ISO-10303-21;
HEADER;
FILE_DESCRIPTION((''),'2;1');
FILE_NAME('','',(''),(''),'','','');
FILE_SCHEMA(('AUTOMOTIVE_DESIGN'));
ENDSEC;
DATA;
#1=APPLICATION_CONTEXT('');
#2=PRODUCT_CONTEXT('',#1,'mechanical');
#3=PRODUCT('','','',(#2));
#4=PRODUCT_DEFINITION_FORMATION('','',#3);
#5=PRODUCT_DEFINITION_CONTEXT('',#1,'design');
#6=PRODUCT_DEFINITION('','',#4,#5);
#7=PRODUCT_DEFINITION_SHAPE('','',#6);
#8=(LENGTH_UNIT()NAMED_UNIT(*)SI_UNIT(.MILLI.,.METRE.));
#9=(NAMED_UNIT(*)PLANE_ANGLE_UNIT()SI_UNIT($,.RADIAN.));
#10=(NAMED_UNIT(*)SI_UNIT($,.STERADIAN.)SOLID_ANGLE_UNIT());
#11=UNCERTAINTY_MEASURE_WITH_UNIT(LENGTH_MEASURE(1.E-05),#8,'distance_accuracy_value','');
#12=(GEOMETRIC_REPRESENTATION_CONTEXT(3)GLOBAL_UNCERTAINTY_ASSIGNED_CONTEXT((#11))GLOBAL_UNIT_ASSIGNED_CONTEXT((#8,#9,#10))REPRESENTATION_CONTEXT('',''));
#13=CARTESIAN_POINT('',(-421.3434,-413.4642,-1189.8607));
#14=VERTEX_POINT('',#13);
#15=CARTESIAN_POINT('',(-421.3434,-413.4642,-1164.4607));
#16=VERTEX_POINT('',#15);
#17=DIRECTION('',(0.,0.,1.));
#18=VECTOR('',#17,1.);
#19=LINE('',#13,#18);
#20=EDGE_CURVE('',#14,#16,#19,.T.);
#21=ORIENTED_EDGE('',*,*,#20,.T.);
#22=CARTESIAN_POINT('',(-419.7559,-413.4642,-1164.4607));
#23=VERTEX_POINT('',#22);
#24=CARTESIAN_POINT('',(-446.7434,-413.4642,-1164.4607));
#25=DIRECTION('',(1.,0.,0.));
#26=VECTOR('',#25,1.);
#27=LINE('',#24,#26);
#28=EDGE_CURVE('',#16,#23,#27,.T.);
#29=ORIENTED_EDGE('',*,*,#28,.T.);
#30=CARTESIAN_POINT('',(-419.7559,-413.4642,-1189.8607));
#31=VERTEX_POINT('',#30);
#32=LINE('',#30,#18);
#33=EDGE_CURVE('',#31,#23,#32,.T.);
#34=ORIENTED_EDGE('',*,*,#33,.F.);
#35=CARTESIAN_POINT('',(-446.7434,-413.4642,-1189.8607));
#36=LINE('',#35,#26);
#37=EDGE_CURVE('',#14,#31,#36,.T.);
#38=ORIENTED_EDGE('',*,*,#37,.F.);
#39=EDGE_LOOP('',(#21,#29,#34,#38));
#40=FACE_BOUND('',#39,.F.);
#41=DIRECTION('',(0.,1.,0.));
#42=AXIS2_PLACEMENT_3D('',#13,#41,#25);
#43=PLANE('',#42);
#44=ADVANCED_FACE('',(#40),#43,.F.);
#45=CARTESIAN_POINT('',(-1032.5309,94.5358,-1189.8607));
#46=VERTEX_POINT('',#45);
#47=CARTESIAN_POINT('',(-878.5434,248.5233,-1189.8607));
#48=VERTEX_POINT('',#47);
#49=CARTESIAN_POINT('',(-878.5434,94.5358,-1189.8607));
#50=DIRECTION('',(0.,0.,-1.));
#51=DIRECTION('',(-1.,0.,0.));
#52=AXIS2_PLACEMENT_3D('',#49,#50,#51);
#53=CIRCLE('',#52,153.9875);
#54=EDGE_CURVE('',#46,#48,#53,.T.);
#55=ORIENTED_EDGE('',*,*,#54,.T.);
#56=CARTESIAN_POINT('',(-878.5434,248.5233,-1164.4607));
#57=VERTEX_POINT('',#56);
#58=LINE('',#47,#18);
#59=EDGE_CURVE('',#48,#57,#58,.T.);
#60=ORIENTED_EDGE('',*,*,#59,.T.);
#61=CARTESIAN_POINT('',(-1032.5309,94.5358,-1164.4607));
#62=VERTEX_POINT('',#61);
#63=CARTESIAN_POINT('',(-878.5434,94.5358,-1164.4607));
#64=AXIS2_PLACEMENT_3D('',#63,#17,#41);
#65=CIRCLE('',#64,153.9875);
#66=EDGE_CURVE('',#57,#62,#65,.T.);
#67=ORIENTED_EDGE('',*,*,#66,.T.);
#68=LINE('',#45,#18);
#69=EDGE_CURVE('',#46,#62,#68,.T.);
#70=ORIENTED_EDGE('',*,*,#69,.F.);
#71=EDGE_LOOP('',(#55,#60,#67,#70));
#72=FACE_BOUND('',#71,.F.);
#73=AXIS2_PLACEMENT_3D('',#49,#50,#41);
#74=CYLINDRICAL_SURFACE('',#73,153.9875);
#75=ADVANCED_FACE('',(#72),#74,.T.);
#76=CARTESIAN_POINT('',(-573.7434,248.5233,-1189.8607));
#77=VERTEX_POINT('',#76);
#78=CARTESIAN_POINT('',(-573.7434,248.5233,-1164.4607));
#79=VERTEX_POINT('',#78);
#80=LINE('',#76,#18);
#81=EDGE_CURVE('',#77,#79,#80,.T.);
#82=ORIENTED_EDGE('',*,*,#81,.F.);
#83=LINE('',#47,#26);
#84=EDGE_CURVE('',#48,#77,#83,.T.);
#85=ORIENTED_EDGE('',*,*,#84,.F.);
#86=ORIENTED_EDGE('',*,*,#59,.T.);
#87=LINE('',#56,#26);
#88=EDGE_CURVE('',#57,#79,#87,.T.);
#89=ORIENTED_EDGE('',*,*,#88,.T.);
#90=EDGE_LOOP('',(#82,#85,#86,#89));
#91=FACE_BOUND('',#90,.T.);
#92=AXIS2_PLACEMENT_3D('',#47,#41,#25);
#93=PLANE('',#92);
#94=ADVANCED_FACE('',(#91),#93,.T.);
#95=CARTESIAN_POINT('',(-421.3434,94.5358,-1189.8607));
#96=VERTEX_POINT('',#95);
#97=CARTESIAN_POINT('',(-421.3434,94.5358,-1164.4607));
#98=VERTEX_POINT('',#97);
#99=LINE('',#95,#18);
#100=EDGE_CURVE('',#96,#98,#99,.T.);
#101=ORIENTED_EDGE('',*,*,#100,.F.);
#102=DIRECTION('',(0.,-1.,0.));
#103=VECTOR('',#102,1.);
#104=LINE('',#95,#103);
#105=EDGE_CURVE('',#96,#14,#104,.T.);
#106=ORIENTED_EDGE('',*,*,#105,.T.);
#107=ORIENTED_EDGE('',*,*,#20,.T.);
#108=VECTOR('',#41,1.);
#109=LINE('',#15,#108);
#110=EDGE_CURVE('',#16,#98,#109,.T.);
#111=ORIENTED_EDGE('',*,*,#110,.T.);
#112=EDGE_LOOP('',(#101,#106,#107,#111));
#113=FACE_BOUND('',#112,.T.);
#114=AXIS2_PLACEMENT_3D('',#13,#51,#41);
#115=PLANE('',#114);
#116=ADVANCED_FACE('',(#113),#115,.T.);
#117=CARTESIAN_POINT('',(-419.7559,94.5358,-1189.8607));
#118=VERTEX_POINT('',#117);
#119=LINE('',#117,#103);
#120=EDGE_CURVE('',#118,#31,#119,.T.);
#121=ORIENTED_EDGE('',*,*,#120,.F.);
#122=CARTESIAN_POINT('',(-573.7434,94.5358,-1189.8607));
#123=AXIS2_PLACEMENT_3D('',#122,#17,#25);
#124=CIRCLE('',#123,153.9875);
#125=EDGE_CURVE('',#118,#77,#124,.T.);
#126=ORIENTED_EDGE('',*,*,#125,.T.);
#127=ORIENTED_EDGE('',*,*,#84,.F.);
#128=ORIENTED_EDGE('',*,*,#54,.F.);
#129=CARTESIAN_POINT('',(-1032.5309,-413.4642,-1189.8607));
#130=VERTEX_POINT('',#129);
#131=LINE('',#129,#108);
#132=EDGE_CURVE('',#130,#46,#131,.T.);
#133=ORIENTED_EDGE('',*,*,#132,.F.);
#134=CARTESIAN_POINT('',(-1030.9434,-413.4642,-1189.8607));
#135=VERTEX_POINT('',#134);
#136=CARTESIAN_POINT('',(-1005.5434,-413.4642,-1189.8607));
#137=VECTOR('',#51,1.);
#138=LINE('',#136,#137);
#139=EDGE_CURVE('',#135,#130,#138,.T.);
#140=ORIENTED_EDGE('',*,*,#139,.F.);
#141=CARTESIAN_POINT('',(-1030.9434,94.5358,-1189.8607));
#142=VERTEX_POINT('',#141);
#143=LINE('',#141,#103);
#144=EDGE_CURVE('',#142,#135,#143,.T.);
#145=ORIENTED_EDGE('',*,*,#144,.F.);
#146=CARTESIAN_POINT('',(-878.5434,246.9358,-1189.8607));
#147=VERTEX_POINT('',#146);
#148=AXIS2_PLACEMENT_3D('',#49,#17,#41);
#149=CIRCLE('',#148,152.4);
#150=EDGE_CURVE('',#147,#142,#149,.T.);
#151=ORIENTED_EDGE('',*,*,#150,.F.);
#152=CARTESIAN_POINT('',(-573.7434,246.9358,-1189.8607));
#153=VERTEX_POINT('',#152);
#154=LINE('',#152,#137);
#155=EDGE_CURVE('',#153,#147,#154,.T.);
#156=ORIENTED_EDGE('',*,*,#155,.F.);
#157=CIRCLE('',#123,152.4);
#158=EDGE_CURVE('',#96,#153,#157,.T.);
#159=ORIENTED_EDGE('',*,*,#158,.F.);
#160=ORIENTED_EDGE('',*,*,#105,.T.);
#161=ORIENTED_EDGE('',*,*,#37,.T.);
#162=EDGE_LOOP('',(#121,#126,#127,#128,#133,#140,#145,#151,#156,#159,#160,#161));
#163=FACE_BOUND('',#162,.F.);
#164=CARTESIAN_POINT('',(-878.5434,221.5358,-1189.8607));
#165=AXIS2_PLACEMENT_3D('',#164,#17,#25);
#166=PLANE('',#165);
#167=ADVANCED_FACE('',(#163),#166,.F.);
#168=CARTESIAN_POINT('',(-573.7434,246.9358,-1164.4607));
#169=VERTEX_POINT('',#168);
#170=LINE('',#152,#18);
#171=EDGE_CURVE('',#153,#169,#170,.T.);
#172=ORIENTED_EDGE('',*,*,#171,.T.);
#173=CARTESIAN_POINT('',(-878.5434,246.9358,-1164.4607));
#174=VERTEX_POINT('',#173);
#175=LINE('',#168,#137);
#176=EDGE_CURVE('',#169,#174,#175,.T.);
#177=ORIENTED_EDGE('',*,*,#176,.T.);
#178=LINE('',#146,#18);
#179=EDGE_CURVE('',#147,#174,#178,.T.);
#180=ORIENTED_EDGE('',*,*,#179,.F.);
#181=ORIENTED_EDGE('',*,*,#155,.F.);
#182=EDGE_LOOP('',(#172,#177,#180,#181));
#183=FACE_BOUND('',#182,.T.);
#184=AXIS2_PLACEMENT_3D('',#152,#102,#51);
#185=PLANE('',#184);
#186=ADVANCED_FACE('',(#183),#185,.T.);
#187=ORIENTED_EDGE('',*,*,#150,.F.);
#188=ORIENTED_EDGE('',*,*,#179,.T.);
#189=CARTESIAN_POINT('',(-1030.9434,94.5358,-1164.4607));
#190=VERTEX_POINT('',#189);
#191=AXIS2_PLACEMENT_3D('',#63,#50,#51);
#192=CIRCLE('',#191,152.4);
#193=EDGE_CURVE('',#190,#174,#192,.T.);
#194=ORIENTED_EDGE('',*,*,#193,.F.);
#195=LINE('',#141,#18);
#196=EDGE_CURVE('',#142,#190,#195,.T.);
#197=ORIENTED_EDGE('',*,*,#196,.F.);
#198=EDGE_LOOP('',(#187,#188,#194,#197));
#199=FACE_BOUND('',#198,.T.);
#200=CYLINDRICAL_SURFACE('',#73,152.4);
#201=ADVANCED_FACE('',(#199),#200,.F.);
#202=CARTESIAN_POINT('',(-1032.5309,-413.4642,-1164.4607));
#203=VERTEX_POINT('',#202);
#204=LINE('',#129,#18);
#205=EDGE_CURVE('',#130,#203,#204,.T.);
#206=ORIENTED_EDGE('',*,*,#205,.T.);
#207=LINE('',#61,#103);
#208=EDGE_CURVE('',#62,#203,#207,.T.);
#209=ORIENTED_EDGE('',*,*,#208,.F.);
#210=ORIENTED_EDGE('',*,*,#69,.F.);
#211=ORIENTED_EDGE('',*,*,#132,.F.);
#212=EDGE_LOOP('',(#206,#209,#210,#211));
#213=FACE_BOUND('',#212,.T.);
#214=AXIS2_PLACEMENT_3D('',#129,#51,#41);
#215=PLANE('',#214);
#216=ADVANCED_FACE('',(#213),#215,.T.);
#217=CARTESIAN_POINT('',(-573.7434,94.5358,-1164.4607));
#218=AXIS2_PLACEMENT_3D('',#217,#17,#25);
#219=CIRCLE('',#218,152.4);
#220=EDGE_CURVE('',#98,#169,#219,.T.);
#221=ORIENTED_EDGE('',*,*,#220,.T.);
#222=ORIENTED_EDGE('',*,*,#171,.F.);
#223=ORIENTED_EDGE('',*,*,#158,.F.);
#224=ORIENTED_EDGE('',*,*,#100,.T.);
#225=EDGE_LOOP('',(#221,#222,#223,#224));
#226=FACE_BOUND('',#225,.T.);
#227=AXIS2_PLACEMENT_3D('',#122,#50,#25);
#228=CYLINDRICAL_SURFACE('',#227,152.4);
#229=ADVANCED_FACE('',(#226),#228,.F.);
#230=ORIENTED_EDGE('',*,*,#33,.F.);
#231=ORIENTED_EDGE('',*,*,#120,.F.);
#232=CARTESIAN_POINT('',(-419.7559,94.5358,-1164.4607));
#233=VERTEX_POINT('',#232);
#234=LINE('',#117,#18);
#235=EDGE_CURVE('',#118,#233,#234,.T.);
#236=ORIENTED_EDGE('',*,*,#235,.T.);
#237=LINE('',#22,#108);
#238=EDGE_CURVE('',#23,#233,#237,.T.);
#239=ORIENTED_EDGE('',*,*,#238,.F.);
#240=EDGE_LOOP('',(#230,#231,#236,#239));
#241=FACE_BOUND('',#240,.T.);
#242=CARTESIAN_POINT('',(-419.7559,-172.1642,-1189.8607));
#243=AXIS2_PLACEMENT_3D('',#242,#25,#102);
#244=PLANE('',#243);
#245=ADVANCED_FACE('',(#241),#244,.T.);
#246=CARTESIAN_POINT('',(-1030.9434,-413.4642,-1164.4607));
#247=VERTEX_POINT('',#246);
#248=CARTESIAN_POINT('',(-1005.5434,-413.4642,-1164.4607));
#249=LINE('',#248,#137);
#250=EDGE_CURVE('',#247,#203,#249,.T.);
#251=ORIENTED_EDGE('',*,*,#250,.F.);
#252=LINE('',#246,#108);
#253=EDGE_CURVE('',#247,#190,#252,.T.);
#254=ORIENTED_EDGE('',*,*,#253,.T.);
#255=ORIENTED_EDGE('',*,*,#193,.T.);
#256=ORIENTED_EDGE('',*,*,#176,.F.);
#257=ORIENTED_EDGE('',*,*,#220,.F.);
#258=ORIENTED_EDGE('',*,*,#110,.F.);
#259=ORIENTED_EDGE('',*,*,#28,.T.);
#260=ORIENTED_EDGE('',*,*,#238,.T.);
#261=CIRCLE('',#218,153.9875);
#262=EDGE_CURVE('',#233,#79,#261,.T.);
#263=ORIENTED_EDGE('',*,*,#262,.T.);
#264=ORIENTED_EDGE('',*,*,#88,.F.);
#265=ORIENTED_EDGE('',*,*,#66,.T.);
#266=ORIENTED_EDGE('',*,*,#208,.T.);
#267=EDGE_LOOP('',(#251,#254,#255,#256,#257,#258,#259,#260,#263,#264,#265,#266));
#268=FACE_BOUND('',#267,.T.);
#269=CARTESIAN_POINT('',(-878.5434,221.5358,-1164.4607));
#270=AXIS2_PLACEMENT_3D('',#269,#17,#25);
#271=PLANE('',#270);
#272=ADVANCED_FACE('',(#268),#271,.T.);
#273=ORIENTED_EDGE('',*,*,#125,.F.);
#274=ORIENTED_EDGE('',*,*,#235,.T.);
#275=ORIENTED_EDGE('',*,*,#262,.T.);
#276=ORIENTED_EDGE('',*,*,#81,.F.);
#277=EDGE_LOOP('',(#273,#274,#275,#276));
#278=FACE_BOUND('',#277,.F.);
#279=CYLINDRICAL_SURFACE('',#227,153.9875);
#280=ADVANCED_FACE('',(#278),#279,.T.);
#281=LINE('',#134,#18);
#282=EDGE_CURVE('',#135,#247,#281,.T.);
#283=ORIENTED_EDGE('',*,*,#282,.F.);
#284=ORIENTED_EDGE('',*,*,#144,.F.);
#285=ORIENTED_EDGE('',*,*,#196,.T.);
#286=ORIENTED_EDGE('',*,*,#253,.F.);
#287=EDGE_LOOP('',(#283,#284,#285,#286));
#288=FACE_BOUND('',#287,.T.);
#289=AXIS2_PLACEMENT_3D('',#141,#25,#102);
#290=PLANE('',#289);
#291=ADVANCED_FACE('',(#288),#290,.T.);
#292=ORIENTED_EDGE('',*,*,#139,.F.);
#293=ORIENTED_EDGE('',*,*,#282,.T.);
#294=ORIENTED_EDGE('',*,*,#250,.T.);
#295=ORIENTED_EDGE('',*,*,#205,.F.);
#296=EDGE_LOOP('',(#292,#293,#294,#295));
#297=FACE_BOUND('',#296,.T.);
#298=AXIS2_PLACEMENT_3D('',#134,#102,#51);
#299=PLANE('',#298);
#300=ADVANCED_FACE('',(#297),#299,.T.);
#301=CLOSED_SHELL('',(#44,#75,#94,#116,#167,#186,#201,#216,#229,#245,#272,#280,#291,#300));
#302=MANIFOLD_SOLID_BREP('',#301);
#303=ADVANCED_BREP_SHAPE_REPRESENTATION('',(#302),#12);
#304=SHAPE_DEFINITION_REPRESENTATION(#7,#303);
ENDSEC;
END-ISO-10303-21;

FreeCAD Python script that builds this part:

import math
import FreeCAD as App
import Part
import Sketcher
from FreeCAD import Vector
Q = App.Units.Quantity

doc = App.newDocument("Part")
params = doc.addObject("Spreadsheet::Sheet", "Params")
for row, (alias, value) in enumerate([
    ("sketch1_radius", "6 in"),
    ("sketch1_width", "0.0625 in"),
    ("sketch1_width2", "12 in"),
    ("sketch1_height", "20 in"),
    ("pad1_length", "1 in"),
], start=1):
    params.set(f"A{row}", alias)
    params.set(f"B{row}", "=" + value)
    params.setAlias(f"B{row}", alias)

body = doc.addObject("PartDesign::Body", "Body")

sketch1 = body.newObject("Sketcher::SketchObject", "Sketch")
sketch1.AttachmentSupport = (doc.getObject("XY_Plane"), [""])
sketch1.MapMode = "FlatFace"
sketch1.AttachmentOffset = App.Placement(Vector(0, 0, -46.8449094 * 25.4), App.Rotation())
sketch1.addGeometry([
    Part.LineSegment(Vector(-421.3, -413.5, 0), Vector(-419.8, -413.5, 0)),
    Part.LineSegment(Vector(-419.8, -413.5, 0), Vector(-419.8, 94.5, 0)),
    Part.ArcOfCircle(Part.Circle(Vector(-573.7, 94.5, 0), Vector(0, 0, 1), 154), math.radians(0), math.radians(90)),
    Part.LineSegment(Vector(-573.7, 248.5, 0), Vector(-878.5, 248.5, 0)),
    Part.ArcOfCircle(Part.Circle(Vector(-878.5, 94.5, 0), Vector(0, 0, 1), 154), math.radians(90), math.radians(180)),
    Part.LineSegment(Vector(-1032.5, 94.5, 0), Vector(-1032.5, -413.5, 0)),
    Part.LineSegment(Vector(-1032.5, -413.5, 0), Vector(-1030.9, -413.5, 0)),
    Part.LineSegment(Vector(-1030.9, -413.5, 0), Vector(-1030.9, 94.5, 0)),
    Part.ArcOfCircle(Part.Circle(Vector(-878.5, 94.5, 0), Vector(0, 0, 1), 152.4), math.radians(90), math.radians(180)),
    Part.LineSegment(Vector(-878.5, 246.9, 0), Vector(-573.7, 246.9, 0)),
    Part.ArcOfCircle(Part.Circle(Vector(-573.7, 94.5, 0), Vector(0, 0, 1), 152.4), math.radians(0), math.radians(90)),
    Part.LineSegment(Vector(-421.3, 94.5, 0), Vector(-421.3, -413.5, 0)),
], False)
sketch1.addConstraint([
    Sketcher.Constraint("Coincident", 0, 2, 1, 1),
    Sketcher.Constraint("Tangent", 1, 2, 2, 1),
    Sketcher.Constraint("Tangent", 2, 2, 3, 1),
    Sketcher.Constraint("Tangent", 3, 2, 4, 1),
    Sketcher.Constraint("Tangent", 4, 2, 5, 1),
    Sketcher.Constraint("Coincident", 5, 2, 6, 1),
    Sketcher.Constraint("Coincident", 6, 2, 7, 1),
    Sketcher.Constraint("Tangent", 7, 2, 8, 2),
    Sketcher.Constraint("Tangent", 8, 1, 9, 1),
    Sketcher.Constraint("Tangent", 9, 2, 10, 2),
    Sketcher.Constraint("Tangent", 10, 1, 11, 1),
    Sketcher.Constraint("Coincident", 11, 2, 0, 1),
    Sketcher.Constraint("Horizontal", 0),
    Sketcher.Constraint("Vertical", 1),
    Sketcher.Constraint("Horizontal", 3),
    Sketcher.Constraint("Vertical", 5),
    Sketcher.Constraint("Horizontal", 6),
    Sketcher.Constraint("Vertical", 7),
    Sketcher.Constraint("Horizontal", 9),
    Sketcher.Constraint("Vertical", 11),
    Sketcher.Constraint("Coincident", 8, 3, 4, 3),
    Sketcher.Constraint("Coincident", 10, 3, 2, 3),
    Sketcher.Constraint("Equal", 2, 4),
    Sketcher.Constraint("Horizontal", 0, 2, 5, 2),
    Sketcher.Constraint("Radius", 8, Q("6 in")),
    Sketcher.Constraint("DistanceX", 0, 1, 0, 2, Q("0.0625 in")),
    Sketcher.Constraint("DistanceX", 3, 2, 3, 1, Q("12 in")),
    Sketcher.Constraint("DistanceY", 1, 1, 1, 2, Q("20 in")),
    Sketcher.Constraint("DistanceX", 2, 3, -1, 1, Q("573.7434 mm")),
    Sketcher.Constraint("DistanceY", -1, 1, 2, 3, Q("94.5358 mm")),
])
sketch1.setExpression("Constraints[24]", "Params.sketch1_radius")
sketch1.setExpression("Constraints[25]", "Params.sketch1_width")
sketch1.setExpression("Constraints[26]", "Params.sketch1_width2")
sketch1.setExpression("Constraints[27]", "Params.sketch1_height")
pad1 = body.newObject("PartDesign::Pad", "Pad")
pad1.Profile = sketch1
pad1.setExpression("Length", "Params.pad1_length")

doc.recompute()
